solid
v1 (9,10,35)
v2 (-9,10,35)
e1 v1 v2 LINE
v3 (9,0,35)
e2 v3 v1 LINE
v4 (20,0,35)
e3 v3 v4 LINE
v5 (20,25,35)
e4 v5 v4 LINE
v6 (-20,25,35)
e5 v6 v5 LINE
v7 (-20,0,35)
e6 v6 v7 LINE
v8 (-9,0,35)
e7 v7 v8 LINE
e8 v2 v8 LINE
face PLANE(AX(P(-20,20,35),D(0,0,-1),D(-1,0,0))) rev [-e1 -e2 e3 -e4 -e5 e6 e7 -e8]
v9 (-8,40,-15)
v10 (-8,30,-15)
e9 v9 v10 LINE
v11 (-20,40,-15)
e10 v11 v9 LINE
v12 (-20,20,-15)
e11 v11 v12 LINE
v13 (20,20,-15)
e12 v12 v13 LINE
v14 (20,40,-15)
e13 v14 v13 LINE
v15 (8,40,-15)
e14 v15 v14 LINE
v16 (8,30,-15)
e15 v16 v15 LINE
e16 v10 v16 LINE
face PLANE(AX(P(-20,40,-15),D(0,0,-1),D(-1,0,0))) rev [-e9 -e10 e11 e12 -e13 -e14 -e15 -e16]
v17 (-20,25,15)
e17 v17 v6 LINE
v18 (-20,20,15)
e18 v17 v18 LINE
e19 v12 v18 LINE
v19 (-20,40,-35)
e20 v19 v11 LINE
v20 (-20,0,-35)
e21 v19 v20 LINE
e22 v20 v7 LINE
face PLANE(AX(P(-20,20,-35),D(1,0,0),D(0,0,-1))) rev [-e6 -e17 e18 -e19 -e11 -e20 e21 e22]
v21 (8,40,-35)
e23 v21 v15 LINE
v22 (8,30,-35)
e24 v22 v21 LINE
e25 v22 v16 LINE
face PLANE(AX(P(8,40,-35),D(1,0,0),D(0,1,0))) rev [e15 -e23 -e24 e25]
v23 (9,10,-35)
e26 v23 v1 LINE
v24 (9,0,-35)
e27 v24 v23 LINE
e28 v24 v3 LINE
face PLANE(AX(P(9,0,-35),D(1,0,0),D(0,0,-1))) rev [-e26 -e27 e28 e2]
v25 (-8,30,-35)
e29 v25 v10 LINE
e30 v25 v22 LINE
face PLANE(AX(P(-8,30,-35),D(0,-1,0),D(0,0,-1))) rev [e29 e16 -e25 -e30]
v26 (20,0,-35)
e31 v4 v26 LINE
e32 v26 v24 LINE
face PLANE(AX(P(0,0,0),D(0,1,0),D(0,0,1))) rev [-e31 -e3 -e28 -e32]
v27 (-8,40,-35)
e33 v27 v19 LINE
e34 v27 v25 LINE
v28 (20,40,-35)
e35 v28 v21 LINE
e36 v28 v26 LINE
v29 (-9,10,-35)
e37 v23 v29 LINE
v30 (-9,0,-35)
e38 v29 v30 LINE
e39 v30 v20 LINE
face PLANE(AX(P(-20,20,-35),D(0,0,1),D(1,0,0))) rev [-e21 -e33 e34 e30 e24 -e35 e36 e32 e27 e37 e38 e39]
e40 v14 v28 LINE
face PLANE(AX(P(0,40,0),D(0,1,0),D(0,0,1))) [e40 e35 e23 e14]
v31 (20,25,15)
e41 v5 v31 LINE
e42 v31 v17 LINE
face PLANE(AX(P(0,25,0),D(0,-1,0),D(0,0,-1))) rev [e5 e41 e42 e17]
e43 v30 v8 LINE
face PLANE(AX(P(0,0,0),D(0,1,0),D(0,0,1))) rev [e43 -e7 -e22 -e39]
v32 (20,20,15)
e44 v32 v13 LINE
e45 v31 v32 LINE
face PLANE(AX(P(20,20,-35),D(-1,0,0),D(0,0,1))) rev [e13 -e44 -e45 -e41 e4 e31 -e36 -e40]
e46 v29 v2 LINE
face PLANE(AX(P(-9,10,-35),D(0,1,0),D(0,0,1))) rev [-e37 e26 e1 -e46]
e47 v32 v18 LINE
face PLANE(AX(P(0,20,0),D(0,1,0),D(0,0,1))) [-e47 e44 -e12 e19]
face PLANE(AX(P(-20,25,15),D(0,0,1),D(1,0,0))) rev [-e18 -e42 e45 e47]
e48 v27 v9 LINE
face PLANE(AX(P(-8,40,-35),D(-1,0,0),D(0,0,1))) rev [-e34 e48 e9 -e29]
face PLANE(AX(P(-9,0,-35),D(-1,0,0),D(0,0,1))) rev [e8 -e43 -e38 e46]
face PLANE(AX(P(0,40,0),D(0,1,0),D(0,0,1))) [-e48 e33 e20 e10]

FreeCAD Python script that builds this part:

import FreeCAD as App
import Part
import Sketcher
Q = App.Units.Quantity


def add_polygon(sketch, points):
    """Adds a closed chain of lines whose ends are joined by coincident constraints."""
    first, n = sketch.GeometryCount, len(points)
    for a, b in zip(points, points[1:] + points[:1]):
        sketch.addGeometry(Part.LineSegment(App.Vector(*a, 0), App.Vector(*b, 0)), False)
    for i in range(n):
        sketch.addConstraint(Sketcher.Constraint("Coincident", first + i, 2, first + (i + 1) % n, 1))

doc = App.newDocument("Part")
body = doc.addObject("PartDesign::Body", "Body")

sketch1 = doc.addObject("Sketcher::SketchObject", "Sketch")
body.addObject(sketch1)
sketch1.AttachmentSupport = (doc.XZ_Plane, [""])
sketch1.MapMode = "FlatFace"
add_polygon(sketch1, [(-20, -35), (-20, 35), (20, 35), (20, -35)])
sketch1.addConstraint([
    Sketcher.Constraint("Vertical", 0),
    Sketcher.Constraint("Horizontal", 1),
    Sketcher.Constraint("Vertical", 2),
    Sketcher.Constraint("Horizontal", 3),
    Sketcher.Constraint("Symmetric", 0, 2, 2, 2, -1, 1),
    Sketcher.Constraint("DistanceX", 1, 1, 1, 2, Q("40 mm")),
    Sketcher.Constraint("DistanceY", 0, 1, 0, 2, Q("70 mm")),
])
pad1 = doc.addObject("PartDesign::Pad", "Pad")
body.addObject(pad1)
pad1.Profile = sketch1
pad1.Length = 20
pad1.Reversed = True

sketch2 = doc.addObject("Sketcher::SketchObject", "Sketch001")
body.addObject(sketch2)
sketch2.AttachmentSupport = (doc.XY_Plane, [""])
sketch2.MapMode = "FlatFace"
sketch2.AttachmentOffset = App.Placement(App.Vector(0, 0, 35), App.Rotation())
add_polygon(sketch2, [(-9, 10), (-9, 0), (9, 0), (9, 10)])
sketch2.addConstraint([
    Sketcher.Constraint("Vertical", 0),
    Sketcher.Constraint("Horizontal", 1),
    Sketcher.Constraint("Vertical", 2),
    Sketcher.Constraint("Horizontal", 3),
    Sketcher.Constraint("Symmetric", 0, 2, 1, 2, -1, 1),
    Sketcher.Constraint("DistanceX", 1, 1, 1, 2, Q("18 mm")),
    Sketcher.Constraint("DistanceY", 0, 2, 0, 1, Q("10 mm")),
])
pocket1 = doc.addObject("PartDesign::Pocket", "Pocket")
body.addObject(pocket1)
pocket1.Profile = sketch2
pocket1.Type = "ThroughAll"

sketch3 = doc.addObject("Sketcher::SketchObject", "Sketch002")
body.addObject(sketch3)
sketch3.AttachmentSupport = (doc.XZ_Plane, [""])
sketch3.MapMode = "FlatFace"
sketch3.AttachmentOffset = App.Placement(App.Vector(0, 0, -20), App.Rotation())
add_polygon(sketch3, [(-20, 15), (-20, 35), (20, 35), (20, 15)])
sketch3.addConstraint([
    Sketcher.Constraint("Vertical", 0),
    Sketcher.Constraint("Horizontal", 1),
    Sketcher.Constraint("Vertical", 2),
    Sketcher.Constraint("Horizontal", 3),
    Sketcher.Constraint("DistanceX", 1, 1, 1, 2, Q("40 mm")),
    Sketcher.Constraint("DistanceY", 0, 1, 0, 2, Q("20 mm")),
    Sketcher.Constraint("DistanceX", 0, 2, -1, 1, Q("20 mm")),
    Sketcher.Constraint("DistanceY", -1, 1, 0, 2, Q("35 mm")),
])
pad2 = doc.addObject("PartDesign::Pad", "Pad001")
body.addObject(pad2)
pad2.Profile = sketch3
pad2.Length = 5
pad2.Reversed = True

sketch4 = doc.addObject("Sketcher::SketchObject", "Sketch003")
body.addObject(sketch4)
sketch4.AttachmentSupport = (doc.XZ_Plane, [""])
sketch4.MapMode = "FlatFace"
sketch4.AttachmentOffset = App.Placement(App.Vector(0, 0, -20), App.Rotation())
add_polygon(sketch4, [(-20, -35), (-20, -15), (20, -15), (20, -35)])
sketch4.addConstraint([
    Sketcher.Constraint("Vertical", 0),
    Sketcher.Constraint("Horizontal", 1),
    Sketcher.Constraint("Vertical", 2),
    Sketcher.Constraint("Horizontal", 3),
    Sketcher.Constraint("DistanceX", 1, 1, 1, 2, Q("40 mm")),
    Sketcher.Constraint("DistanceY", 0, 1, 0, 2, Q("20 mm")),
    Sketcher.Constraint("DistanceX", 0, 2, -1, 1, Q("20 mm")),
    Sketcher.Constraint("DistanceY", 0, 2, -1, 1, Q("15 mm")),
])
pad3 = doc.addObject("PartDesign::Pad", "Pad002")
body.addObject(pad3)
pad3.Profile = sketch4
pad3.Length = 20
pad3.Reversed = True

sketch5 = doc.addObject("Sketcher::SketchObject", "Sketch004")
body.addObject(sketch5)
sketch5.AttachmentSupport = (doc.XY_Plane, [""])
sketch5.MapMode = "FlatFace"
sketch5.AttachmentOffset = App.Placement(App.Vector(0, 0, -15), App.Rotation())
add_polygon(sketch5, [(-8, 40), (-8, 30), (8, 30), (8, 40)])
sketch5.addConstraint([
    Sketcher.Constraint("Vertical", 0),
    Sketcher.Constraint("Horizontal", 1),
    Sketcher.Constraint("Vertical", 2),
    Sketcher.Constraint("Horizontal", 3),
    Sketcher.Constraint("DistanceX", 1, 1, 1, 2, Q("16 mm")),
    Sketcher.Constraint("DistanceY", 0, 2, 0, 1, Q("10 mm")),
    Sketcher.Constraint("DistanceX", 0, 2, -1, 1, Q("8 mm")),
    Sketcher.Constraint("DistanceY", -1, 1, 0, 2, Q("30 mm")),
])
pocket2 = doc.addObject("PartDesign::Pocket", "Pocket001")
body.addObject(pocket2)
pocket2.Profile = sketch5
pocket2.Type = "ThroughAll"

doc.recompute()
